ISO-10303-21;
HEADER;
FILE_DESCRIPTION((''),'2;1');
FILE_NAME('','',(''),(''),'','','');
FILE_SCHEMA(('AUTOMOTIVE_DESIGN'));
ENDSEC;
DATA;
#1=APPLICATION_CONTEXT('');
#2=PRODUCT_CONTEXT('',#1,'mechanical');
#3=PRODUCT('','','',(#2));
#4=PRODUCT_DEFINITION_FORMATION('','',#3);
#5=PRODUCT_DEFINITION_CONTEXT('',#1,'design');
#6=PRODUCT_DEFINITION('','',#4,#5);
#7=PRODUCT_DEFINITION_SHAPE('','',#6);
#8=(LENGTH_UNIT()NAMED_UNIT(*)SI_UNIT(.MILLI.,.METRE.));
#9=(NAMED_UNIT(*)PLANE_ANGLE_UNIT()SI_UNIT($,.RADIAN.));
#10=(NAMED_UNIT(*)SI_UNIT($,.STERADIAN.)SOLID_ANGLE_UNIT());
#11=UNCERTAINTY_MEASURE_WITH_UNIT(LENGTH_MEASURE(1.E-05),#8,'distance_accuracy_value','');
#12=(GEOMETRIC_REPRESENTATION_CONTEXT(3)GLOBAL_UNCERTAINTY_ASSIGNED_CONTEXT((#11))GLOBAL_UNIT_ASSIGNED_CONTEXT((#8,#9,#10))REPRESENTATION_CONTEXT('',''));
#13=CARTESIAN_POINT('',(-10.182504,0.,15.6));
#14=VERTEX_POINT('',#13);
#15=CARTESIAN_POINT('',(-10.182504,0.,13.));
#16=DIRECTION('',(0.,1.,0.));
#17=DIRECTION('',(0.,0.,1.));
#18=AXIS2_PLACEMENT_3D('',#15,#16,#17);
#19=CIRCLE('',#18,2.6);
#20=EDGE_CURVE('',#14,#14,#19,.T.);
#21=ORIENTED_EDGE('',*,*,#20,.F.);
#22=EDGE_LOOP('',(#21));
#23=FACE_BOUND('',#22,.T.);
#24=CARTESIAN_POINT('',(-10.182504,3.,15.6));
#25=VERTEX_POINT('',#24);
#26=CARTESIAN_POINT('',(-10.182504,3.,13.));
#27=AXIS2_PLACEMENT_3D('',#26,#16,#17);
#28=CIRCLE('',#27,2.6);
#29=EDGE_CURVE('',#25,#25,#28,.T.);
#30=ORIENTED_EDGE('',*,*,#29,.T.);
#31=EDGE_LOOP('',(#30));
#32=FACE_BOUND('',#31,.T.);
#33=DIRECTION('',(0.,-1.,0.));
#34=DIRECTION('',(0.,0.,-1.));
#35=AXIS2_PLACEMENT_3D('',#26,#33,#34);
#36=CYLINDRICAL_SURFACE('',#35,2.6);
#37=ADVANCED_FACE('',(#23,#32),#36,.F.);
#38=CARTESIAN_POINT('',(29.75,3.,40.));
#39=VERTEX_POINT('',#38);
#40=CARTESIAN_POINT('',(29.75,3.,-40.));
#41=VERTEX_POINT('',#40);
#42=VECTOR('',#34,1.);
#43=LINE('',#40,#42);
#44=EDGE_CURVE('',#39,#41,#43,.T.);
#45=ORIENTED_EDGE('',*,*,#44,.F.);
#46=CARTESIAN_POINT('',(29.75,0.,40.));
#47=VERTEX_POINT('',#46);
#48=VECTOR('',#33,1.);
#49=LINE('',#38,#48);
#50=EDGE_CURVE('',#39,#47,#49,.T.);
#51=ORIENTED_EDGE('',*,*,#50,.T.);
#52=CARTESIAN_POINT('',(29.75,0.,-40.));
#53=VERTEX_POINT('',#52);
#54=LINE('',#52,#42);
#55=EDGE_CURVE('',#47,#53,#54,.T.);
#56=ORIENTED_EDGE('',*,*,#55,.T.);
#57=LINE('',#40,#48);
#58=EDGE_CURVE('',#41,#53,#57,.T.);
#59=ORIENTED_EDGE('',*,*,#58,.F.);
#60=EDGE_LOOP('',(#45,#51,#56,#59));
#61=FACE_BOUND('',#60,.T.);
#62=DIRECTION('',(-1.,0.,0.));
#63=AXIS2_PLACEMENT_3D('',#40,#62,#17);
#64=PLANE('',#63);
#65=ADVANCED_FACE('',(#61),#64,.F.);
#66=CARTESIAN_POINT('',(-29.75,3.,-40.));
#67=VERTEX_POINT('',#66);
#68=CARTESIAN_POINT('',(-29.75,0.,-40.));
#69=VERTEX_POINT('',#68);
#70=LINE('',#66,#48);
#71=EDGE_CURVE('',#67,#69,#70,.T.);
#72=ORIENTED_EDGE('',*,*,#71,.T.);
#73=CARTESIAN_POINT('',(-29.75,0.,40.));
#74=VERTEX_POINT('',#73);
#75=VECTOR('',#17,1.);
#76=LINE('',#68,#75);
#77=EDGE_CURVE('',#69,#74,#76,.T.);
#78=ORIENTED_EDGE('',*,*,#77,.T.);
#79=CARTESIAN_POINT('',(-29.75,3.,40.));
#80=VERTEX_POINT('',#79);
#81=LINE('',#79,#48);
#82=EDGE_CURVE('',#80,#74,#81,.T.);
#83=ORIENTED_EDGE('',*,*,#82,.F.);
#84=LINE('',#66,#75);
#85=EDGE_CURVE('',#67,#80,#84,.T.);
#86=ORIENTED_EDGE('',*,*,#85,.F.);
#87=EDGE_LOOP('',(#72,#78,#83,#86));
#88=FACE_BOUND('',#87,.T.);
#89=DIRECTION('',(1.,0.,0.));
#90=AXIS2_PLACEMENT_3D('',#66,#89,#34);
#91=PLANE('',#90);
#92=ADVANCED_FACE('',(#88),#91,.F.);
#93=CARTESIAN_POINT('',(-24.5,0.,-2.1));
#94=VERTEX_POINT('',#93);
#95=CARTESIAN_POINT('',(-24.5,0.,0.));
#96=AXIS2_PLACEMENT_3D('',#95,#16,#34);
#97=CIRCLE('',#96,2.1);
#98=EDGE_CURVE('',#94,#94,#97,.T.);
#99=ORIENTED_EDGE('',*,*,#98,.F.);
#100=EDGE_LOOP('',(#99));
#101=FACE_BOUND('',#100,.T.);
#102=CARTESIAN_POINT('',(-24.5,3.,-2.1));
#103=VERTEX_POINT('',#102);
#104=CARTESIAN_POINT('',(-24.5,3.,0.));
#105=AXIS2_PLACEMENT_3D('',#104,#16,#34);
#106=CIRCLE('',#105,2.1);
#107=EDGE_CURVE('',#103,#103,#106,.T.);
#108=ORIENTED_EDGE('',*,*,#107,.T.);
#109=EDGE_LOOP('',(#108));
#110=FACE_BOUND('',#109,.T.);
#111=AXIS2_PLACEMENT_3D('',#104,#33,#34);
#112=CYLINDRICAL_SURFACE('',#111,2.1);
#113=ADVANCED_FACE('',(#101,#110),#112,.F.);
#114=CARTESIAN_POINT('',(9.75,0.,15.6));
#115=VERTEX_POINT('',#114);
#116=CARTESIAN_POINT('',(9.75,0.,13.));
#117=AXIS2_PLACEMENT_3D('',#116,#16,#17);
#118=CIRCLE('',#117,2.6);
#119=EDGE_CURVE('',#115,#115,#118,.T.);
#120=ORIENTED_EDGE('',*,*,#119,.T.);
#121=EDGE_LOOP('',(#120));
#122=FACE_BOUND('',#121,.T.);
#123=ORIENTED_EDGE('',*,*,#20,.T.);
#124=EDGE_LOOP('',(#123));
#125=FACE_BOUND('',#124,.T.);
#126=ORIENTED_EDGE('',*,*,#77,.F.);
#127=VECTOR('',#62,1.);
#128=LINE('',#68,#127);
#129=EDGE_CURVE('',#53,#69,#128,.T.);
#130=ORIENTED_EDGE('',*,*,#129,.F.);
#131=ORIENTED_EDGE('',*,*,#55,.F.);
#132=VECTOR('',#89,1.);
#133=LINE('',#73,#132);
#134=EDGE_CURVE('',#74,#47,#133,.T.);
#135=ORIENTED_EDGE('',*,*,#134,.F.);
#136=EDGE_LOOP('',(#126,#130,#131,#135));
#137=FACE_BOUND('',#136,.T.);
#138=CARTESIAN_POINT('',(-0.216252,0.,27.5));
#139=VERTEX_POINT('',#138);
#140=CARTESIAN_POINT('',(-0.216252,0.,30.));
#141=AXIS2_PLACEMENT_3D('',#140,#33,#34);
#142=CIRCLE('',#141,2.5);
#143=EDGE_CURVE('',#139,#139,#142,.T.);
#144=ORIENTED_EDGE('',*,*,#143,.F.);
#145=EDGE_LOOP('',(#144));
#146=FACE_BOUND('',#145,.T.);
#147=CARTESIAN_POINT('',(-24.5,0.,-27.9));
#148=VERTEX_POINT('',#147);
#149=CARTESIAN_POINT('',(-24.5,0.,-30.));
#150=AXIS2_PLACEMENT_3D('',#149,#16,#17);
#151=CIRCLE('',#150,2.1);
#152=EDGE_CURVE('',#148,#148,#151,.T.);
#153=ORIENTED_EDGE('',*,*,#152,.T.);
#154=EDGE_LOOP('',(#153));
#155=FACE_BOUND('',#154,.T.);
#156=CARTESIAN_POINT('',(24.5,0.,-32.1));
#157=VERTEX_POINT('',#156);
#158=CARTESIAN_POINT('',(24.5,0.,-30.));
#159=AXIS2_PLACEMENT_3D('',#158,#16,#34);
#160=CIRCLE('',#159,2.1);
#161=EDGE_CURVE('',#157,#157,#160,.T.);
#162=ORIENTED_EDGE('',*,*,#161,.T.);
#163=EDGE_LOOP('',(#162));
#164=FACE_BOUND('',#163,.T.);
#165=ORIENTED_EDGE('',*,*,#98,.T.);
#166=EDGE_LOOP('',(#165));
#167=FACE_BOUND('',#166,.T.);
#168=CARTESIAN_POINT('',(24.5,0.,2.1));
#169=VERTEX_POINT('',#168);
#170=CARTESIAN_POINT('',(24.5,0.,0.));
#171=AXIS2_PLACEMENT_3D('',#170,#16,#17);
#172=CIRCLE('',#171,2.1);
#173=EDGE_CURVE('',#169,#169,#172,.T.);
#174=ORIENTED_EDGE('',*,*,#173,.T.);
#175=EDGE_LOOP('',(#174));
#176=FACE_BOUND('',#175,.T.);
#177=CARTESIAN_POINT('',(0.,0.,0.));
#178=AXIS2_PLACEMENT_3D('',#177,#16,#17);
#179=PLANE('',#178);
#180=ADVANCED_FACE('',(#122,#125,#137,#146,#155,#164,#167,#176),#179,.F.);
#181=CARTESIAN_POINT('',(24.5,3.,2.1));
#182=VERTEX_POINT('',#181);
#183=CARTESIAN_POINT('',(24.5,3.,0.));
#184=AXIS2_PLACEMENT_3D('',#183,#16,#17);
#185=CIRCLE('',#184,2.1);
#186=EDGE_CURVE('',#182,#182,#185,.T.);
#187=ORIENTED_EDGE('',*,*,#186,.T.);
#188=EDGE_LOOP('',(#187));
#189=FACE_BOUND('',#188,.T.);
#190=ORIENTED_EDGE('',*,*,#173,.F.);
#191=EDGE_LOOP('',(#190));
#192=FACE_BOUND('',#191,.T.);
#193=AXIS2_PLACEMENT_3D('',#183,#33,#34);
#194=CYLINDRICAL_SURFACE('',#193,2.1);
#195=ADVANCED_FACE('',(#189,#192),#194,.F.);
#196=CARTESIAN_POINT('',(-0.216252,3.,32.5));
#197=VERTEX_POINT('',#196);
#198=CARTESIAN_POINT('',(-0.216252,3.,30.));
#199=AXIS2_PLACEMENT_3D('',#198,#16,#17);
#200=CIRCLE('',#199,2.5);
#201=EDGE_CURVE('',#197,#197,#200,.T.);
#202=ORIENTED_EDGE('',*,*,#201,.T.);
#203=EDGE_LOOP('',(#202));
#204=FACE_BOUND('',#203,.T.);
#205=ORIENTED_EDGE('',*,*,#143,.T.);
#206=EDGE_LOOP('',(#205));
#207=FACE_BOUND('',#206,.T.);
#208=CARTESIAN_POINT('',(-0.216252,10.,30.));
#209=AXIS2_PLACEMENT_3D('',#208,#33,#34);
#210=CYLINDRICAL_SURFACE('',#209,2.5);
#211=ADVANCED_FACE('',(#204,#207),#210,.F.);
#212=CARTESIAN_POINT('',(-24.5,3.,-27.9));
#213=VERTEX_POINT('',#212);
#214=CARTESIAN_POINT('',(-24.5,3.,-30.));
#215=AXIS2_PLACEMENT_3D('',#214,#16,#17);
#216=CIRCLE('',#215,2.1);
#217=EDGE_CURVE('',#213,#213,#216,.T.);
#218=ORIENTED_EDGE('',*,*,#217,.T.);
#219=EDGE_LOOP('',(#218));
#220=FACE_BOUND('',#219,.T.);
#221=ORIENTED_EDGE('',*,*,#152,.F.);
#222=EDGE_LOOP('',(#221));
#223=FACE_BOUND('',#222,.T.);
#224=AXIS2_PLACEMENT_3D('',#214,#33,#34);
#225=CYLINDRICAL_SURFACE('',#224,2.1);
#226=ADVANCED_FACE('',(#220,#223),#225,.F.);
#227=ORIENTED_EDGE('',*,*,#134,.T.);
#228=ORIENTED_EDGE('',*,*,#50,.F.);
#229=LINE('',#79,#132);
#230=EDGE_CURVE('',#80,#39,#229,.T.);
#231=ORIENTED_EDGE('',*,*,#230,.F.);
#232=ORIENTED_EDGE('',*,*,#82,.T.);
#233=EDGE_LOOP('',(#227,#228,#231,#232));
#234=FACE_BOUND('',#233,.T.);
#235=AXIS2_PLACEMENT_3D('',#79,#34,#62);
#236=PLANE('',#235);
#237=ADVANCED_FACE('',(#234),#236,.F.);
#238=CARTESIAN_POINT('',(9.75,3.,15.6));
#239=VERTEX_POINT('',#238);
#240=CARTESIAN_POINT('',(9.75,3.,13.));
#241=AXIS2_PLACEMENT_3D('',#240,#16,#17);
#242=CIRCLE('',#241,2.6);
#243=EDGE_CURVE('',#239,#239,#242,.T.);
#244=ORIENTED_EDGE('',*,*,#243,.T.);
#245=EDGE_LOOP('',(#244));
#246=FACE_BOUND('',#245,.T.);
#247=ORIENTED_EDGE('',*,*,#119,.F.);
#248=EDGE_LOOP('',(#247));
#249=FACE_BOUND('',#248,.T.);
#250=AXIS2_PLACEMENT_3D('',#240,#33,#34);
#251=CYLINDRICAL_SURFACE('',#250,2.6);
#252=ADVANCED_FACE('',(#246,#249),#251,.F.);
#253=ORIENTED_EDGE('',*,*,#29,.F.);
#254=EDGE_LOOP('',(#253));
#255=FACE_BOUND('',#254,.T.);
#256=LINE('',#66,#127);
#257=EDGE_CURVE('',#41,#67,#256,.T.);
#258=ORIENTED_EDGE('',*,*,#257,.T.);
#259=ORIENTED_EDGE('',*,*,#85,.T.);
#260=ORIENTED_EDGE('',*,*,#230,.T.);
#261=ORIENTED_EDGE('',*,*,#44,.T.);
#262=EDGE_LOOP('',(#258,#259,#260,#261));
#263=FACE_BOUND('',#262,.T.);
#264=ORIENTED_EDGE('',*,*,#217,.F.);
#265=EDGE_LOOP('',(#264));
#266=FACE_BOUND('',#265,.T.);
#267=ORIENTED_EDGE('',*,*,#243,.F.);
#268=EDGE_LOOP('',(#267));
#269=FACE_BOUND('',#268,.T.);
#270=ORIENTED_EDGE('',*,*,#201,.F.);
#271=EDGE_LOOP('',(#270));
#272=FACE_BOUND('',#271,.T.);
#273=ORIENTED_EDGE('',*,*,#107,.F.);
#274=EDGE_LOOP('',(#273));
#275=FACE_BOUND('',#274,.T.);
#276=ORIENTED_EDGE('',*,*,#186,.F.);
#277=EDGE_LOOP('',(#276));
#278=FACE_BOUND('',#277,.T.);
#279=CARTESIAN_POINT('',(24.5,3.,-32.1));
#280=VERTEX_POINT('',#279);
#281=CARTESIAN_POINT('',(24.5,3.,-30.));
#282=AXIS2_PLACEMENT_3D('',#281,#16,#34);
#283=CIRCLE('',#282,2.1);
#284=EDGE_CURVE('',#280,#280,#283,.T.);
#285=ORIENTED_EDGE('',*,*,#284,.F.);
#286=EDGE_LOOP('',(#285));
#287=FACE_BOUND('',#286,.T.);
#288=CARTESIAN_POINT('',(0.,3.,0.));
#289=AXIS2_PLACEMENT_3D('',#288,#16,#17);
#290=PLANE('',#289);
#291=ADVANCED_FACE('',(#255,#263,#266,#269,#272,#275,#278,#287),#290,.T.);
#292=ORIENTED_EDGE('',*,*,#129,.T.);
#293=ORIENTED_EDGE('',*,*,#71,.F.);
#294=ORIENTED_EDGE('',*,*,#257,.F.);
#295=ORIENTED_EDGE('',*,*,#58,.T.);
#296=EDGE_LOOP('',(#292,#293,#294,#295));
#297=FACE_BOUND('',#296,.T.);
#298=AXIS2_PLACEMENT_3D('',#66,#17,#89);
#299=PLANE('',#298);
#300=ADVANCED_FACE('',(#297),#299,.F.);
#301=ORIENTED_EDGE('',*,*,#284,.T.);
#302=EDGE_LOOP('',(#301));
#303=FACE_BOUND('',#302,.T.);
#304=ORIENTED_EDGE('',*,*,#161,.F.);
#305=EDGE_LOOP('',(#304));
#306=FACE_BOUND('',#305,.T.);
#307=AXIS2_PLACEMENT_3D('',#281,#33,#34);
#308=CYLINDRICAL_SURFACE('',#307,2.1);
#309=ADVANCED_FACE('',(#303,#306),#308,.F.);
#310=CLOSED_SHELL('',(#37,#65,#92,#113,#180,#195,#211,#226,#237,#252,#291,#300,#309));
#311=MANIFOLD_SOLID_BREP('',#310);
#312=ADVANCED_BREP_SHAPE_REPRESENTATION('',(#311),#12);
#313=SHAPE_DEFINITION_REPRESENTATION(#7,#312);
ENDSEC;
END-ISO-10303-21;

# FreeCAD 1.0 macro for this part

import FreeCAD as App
import Part
import Sketcher

V = App.Vector
Q = App.Units.Quantity

doc = App.newDocument("Part")
params = doc.addObject("Spreadsheet::Sheet", "Params")
for row, (alias, value) in enumerate([
    ("sketch1_diameter", "5.2 mm"),
    ("sketch1_diameter2", "4.2 mm"),
    ("sketch1_height", "80 mm"),
    ("sketch1_width", "59.5 mm"),
    ("pad1_length", "3 mm"),
    ("sketch2_diameter", "5 mm"),
    ("pocket1_length", "10 mm"),
], start=1):
    params.set(f"A{row}", alias)
    params.set(f"B{row}", "=" + value)
    params.setAlias(f"B{row}", alias)

body = doc.addObject("PartDesign::Body", "Body")

sketch1 = doc.addObject("Sketcher::SketchObject", "Sketch")
body.addObject(sketch1)
sketch1.AttachmentSupport = (doc.XZ_Plane, [""])
sketch1.MapMode = "FlatFace"
sketch1.addGeometry([
    Part.LineSegment(V(-29.8, -40, 0), V(-29.8, 40, 0)),
    Part.LineSegment(V(-29.8, 40, 0), V(29.8, 40, 0)),
    Part.LineSegment(V(29.8, 40, 0), V(29.8, -40, 0)),
    Part.LineSegment(V(29.8, -40, 0), V(-29.8, -40, 0)),
    Part.Circle(V(-10.2, 13, 0), V(0, 0, 1), 2.6),
    Part.Circle(V(-24.5, 0, 0), V(0, 0, 1), 2.1),
    Part.Circle(V(9.8, 13, 0), V(0, 0, 1), 2.6),
    Part.Circle(V(24.5, 0, 0), V(0, 0, 1), 2.1),
    Part.Circle(V(-24.5, -30, 0), V(0, 0, 1), 2.1),
    Part.Circle(V(24.5, -30, 0), V(0, 0, 1), 2.1),
], False)
sketch1.addConstraint([
    Sketcher.Constraint("Coincident", 0, 2, 1, 1),
    Sketcher.Constraint("Coincident", 1, 2, 2, 1),
    Sketcher.Constraint("Coincident", 2, 2, 3, 1),
    Sketcher.Constraint("Coincident", 3, 2, 0, 1),
    Sketcher.Constraint("Vertical", 0),
    Sketcher.Constraint("Horizontal", 1),
    Sketcher.Constraint("Vertical", 2),
    Sketcher.Constraint("Horizontal", 3),
    Sketcher.Constraint("Equal", 4, 6),
    Sketcher.Constraint("Equal", 5, 7),
    Sketcher.Constraint("Equal", 7, 8),
    Sketcher.Constraint("Equal", 8, 9),
    Sketcher.Constraint("Symmetric", 5, 3, 7, 3, -1, 1),
    Sketcher.Constraint("Symmetric", 0, 2, 2, 2, -1, 1),
    Sketcher.Constraint("Symmetric", 8, 3, 9, 3, -2),
    Sketcher.Constraint("PointOnObject", 5, 3, -1),
    Sketcher.Constraint("Horizontal", 4, 3, 6, 3),
    Sketcher.Constraint("Vertical", 5, 3, 8, 3),
    Sketcher.Constraint("Diameter", 4, Q("5.2 mm")),
    Sketcher.Constraint("Diameter", 5, Q("4.2 mm")),
    Sketcher.Constraint("DistanceY", 0, 1, 0, 2, Q("80 mm")),
    Sketcher.Constraint("DistanceX", 1, 1, 1, 2, Q("59.5 mm")),
    Sketcher.Constraint("DistanceY", -1, 1, 4, 3, Q("13 mm")),
    Sketcher.Constraint("DistanceY", 8, 3, -1, 1, Q("30 mm")),
    Sketcher.Constraint("DistanceX", 5, 3, 7, 3, Q("49 mm")),
    Sketcher.Constraint("DistanceX", 6, 3, 1, 2, Q("20 mm")),
    Sketcher.Constraint("DistanceX", 4, 3, -1, 1, Q("10.182504 mm")),
])
sketch1.setExpression("Constraints[18]", "Params.sketch1_diameter")
sketch1.setExpression("Constraints[19]", "Params.sketch1_diameter2")
sketch1.setExpression("Constraints[20]", "Params.sketch1_height")
sketch1.setExpression("Constraints[21]", "Params.sketch1_width")
pad1 = doc.addObject("PartDesign::Pad", "Pad")
body.addObject(pad1)
pad1.Profile = sketch1
pad1.setExpression("Length", "Params.pad1_length")
pad1.Reversed = True

sketch2 = doc.addObject("Sketcher::SketchObject", "Sketch001")
body.addObject(sketch2)
sketch2.AttachmentSupport = (doc.XZ_Plane, [""])
sketch2.MapMode = "FlatFace"
sketch2.addGeometry(Part.Circle(V(-0.2, 30, 0), V(0, 0, 1), 2.5), False)
sketch2.addConstraint([
    Sketcher.Constraint("Diameter", 0, Q("5 mm")),
    Sketcher.Constraint("DistanceY", -1, 1, 0, 3, Q("30 mm")),
    Sketcher.Constraint("DistanceX", 0, 3, -1, 1, Q("0.216252 mm")),
])
sketch2.setExpression("Constraints[0]", "Params.sketch2_diameter")
pocket1 = doc.addObject("PartDesign::Pocket", "Pocket")
body.addObject(pocket1)
pocket1.Profile = sketch2
pocket1.setExpression("Length", "Params.pocket1_length")

doc.recompute()
